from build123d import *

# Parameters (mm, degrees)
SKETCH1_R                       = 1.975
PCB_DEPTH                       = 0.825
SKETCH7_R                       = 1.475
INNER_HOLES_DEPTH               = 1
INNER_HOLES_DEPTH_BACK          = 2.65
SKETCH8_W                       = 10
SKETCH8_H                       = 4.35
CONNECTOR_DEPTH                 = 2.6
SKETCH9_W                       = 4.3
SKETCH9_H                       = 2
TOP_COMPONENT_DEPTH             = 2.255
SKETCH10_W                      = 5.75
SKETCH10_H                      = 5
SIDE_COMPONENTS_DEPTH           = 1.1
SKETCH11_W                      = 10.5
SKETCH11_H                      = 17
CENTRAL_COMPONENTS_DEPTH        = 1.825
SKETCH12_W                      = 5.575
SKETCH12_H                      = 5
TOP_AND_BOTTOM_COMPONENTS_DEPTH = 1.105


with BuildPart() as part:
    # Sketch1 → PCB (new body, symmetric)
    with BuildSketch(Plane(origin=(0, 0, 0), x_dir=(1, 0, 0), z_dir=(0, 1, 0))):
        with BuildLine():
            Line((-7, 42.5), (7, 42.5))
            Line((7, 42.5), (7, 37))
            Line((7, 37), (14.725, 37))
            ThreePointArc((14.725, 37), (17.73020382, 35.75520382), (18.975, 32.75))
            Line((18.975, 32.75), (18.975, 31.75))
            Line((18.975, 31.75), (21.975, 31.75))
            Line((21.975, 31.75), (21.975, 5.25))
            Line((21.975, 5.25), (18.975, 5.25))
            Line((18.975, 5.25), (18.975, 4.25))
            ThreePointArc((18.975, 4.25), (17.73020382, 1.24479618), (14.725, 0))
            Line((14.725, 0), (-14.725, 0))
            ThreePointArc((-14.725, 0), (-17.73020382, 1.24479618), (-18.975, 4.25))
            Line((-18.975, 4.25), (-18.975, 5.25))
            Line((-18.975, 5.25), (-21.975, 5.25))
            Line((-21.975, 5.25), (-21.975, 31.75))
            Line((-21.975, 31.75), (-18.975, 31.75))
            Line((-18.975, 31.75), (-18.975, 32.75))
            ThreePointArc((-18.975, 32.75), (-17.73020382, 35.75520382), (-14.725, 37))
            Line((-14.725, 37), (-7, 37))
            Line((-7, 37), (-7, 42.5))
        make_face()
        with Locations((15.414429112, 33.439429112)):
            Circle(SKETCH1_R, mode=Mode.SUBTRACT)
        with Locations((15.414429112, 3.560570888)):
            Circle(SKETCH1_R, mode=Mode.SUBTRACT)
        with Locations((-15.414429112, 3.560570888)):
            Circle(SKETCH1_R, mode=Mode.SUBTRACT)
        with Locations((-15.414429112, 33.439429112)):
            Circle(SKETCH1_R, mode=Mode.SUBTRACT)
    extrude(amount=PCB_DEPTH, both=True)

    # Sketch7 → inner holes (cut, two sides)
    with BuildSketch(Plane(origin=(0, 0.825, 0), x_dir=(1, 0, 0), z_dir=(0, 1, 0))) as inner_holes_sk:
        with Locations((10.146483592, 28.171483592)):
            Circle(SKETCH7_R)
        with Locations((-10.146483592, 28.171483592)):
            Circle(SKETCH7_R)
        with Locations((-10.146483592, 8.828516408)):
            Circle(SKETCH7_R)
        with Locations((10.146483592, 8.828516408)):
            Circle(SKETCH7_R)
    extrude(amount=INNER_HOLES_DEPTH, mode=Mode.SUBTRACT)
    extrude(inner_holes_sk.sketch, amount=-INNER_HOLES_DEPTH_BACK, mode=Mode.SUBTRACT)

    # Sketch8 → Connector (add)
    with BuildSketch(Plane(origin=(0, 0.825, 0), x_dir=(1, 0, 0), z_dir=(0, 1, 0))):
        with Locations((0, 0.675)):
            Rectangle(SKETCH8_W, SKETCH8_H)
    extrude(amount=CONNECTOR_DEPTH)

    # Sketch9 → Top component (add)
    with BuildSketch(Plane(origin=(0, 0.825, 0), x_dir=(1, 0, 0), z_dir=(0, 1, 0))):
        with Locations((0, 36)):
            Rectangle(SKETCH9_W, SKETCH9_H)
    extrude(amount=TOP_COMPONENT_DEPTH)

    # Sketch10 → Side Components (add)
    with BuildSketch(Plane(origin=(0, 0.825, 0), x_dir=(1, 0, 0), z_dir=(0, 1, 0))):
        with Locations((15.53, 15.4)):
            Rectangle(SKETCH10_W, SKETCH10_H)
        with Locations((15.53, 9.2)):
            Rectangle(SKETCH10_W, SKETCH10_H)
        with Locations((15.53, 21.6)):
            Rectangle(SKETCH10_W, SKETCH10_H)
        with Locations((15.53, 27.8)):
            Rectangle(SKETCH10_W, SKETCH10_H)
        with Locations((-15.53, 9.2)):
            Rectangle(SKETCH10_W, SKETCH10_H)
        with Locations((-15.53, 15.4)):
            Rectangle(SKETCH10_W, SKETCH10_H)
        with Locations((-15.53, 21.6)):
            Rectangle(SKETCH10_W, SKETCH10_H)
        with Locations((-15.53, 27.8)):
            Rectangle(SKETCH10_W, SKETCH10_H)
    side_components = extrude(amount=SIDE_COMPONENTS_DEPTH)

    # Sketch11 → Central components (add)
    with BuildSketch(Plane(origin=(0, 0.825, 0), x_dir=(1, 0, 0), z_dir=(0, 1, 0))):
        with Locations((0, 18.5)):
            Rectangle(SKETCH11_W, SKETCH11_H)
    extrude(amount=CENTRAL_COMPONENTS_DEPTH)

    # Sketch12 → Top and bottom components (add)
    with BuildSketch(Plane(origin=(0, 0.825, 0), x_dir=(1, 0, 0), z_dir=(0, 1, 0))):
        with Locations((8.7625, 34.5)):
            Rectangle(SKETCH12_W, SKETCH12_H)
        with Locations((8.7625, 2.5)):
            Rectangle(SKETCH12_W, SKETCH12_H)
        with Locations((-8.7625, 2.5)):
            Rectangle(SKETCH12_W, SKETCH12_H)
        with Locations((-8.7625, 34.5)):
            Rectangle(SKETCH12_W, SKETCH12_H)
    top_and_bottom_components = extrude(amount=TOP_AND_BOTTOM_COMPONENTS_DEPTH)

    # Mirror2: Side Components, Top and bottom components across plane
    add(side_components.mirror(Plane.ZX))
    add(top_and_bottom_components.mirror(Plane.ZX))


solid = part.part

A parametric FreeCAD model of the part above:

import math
import FreeCAD as App
import Part
import Sketcher
from FreeCAD import Vector

doc = App.newDocument("Part")
params = doc.addObject("Spreadsheet::Sheet", "Params")
for row, (alias, value) in enumerate([
    ("sketch1_diameter", "3.95 mm"),
    ("sketch1_width", "14 mm"),
    ("sketch1_width2", "3 mm"),
    ("sketch1_height", "1 mm"),
    ("sketch1_radius", "4.25 mm"),
    ("pad1_length", "1.65 mm"),
    ("sketch2_diameter", "2.95 mm"),
    ("sketch3_width", "10 mm"),
    ("sketch3_height", "4.35 mm"),
    ("pad2_length", "2.6 mm"),
    ("sketch4_height", "2 mm"),
    ("sketch4_width", "4.3 mm"),
    ("pad3_length", "2.255 mm"),
    ("sketch5_height", "5 mm"),
    ("sketch5_width", "5.75 mm"),
    ("pad4_length", "1.1 mm"),
    ("sketch6_height", "17 mm"),
    ("sketch6_width", "10.5 mm"),
    ("pad5_length", "1.825 mm"),
    ("sketch7_height", "5 mm"),
    ("pad6_length", "1.105 mm"),
], start=1):
    params.set(f"A{row}", alias)
    params.set(f"B{row}", "=" + value)
    params.setAlias(f"B{row}", alias)

body = doc.addObject("PartDesign::Body", "Body")

sketch1 = body.newObject("Sketcher::SketchObject", "Sketch")
sketch1.AttachmentSupport = (doc.getObject("XZ_Plane"), [""])
sketch1.MapMode = "FlatFace"
sketch1.addGeometry(Part.LineSegment(Vector(7, -42.5, 0), Vector(-7, -42.5, 0)), False)
sketch1.addGeometry(Part.LineSegment(Vector(-7, -42.5, 0), Vector(-7, -37, 0)), False)
sketch1.addGeometry(Part.LineSegment(Vector(-7, -37, 0), Vector(-14.7, -37, 0)), False)
sketch1.addGeometry(Part.ArcOfCircle(Part.Circle(Vector(-14.7, -32.8, 0), Vector(0, 0, 1), 4.2), math.radians(180), math.radians(270)), False)
sketch1.addGeometry(Part.LineSegment(Vector(-19, -32.8, 0), Vector(-19, -31.8, 0)), False)
sketch1.addGeometry(Part.LineSegment(Vector(-19, -31.8, 0), Vector(-22, -31.8, 0)), False)
sketch1.addGeometry(Part.LineSegment(Vector(-22, -31.8, 0), Vector(-22, -5.2, 0)), False)
sketch1.addGeometry(Part.LineSegment(Vector(-22, -5.2, 0), Vector(-19, -5.2, 0)), False)
sketch1.addGeometry(Part.LineSegment(Vector(-19, -5.2, 0), Vector(-19, -4.2, 0)), False)
sketch1.addGeometry(Part.ArcOfCircle(Part.Circle(Vector(-14.7, -4.2, 0), Vector(0, 0, 1), 4.2), math.radians(90), math.radians(180)), False)
sketch1.addGeometry(Part.LineSegment(Vector(-14.7, 0, 0), Vector(14.7, 0, 0)), False)
sketch1.addGeometry(Part.ArcOfCircle(Part.Circle(Vector(14.7, -4.2, 0), Vector(0, 0, 1), 4.2), math.radians(0), math.radians(90)), False)
sketch1.addGeometry(Part.LineSegment(Vector(19, -4.2, 0), Vector(19, -5.2, 0)), False)
sketch1.addGeometry(Part.LineSegment(Vector(19, -5.2, 0), Vector(22, -5.2, 0)), False)
sketch1.addGeometry(Part.LineSegment(Vector(22, -5.2, 0), Vector(22, -31.8, 0)), False)
sketch1.addGeometry(Part.LineSegment(Vector(22, -31.8, 0), Vector(19, -31.8, 0)), False)
sketch1.addGeometry(Part.LineSegment(Vector(19, -31.8, 0), Vector(19, -32.8, 0)), False)
sketch1.addGeometry(Part.ArcOfCircle(Part.Circle(Vector(14.7, -32.8, 0), Vector(0, 0, 1), 4.2), math.radians(-90), math.radians(0)), False)
sketch1.addGeometry(Part.LineSegment(Vector(14.7, -37, 0), Vector(7, -37, 0)), False)
sketch1.addGeometry(Part.LineSegment(Vector(7, -37, 0), Vector(7, -42.5, 0)), False)
sketch1.addGeometry(Part.Circle(Vector(15.4, -3.6, 0), Vector(0, 0, 1), 2), False)
sketch1.addGeometry(Part.Circle(Vector(-15.4, -3.6, 0), Vector(0, 0, 1), 2), False)
sketch1.addGeometry(Part.Circle(Vector(15.4, -33.4, 0), Vector(0, 0, 1), 2), False)
sketch1.addGeometry(Part.Circle(Vector(-15.4, -33.4, 0), Vector(0, 0, 1), 2), False)
sketch1.addConstraint(Sketcher.Constraint("Coincident", 0, 2, 1, 1))
sketch1.addConstraint(Sketcher.Constraint("Coincident", 1, 2, 2, 1))
sketch1.addConstraint(Sketcher.Constraint("Tangent", 2, 2, 3, 2))
sketch1.addConstraint(Sketcher.Constraint("Tangent", 3, 1, 4, 1))
sketch1.addConstraint(Sketcher.Constraint("Coincident", 4, 2, 5, 1))
sketch1.addConstraint(Sketcher.Constraint("Coincident", 5, 2, 6, 1))
sketch1.addConstraint(Sketcher.Constraint("Coincident", 6, 2, 7, 1))
sketch1.addConstraint(Sketcher.Constraint("Coincident", 7, 2, 8, 1))
sketch1.addConstraint(Sketcher.Constraint("Tangent", 8, 2, 9, 2))
sketch1.addConstraint(Sketcher.Constraint("Tangent", 9, 1, 10, 1))
sketch1.addConstraint(Sketcher.Constraint("Tangent", 10, 2, 11, 2))
sketch1.addConstraint(Sketcher.Constraint("Tangent", 11, 1, 12, 1))
sketch1.addConstraint(Sketcher.Constraint("Coincident", 12, 2, 13, 1))
sketch1.addConstraint(Sketcher.Constraint("Coincident", 13, 2, 14, 1))
sketch1.addConstraint(Sketcher.Constraint("Coincident", 14, 2, 15, 1))
sketch1.addConstraint(Sketcher.Constraint("Coincident", 15, 2, 16, 1))
sketch1.addConstraint(Sketcher.Constraint("Tangent", 16, 2, 17, 2))
sketch1.addConstraint(Sketcher.Constraint("Tangent", 17, 1, 18, 1))
sketch1.addConstraint(Sketcher.Constraint("Coincident", 18, 2, 19, 1))
sketch1.addConstraint(Sketcher.Constraint("Coincident", 19, 2, 0, 1))
sketch1.addConstraint(Sketcher.Constraint("Horizontal", 0))
sketch1.addConstraint(Sketcher.Constraint("Vertical", 1))
sketch1.addConstraint(Sketcher.Constraint("Horizontal", 2))
sketch1.addConstraint(Sketcher.Constraint("Vertical", 4))
sketch1.addConstraint(Sketcher.Constraint("Horizontal", 5))
sketch1.addConstraint(Sketcher.Constraint("Vertical", 6))
sketch1.addConstraint(Sketcher.Constraint("Horizontal", 7))
sketch1.addConstraint(Sketcher.Constraint("Vertical", 8))
sketch1.addConstraint(Sketcher.Constraint("Horizontal", 10))
sketch1.addConstraint(Sketcher.Constraint("Vertical", 12))
sketch1.addConstraint(Sketcher.Constraint("Horizontal", 13))
sketch1.addConstraint(Sketcher.Constraint("Vertical", 14))
sketch1.addConstraint(Sketcher.Constraint("Horizontal", 15))
sketch1.addConstraint(Sketcher.Constraint("Vertical", 16))
sketch1.addConstraint(Sketcher.Constraint("Horizontal", 18))
sketch1.addConstraint(Sketcher.Constraint("Vertical", 19))
sketch1.addConstraint(Sketcher.Constraint("Equal", 3, 9))
sketch1.addConstraint(Sketcher.Constraint("Equal", 9, 11))
sketch1.addConstraint(Sketcher.Constraint("Equal", 11, 17))
sketch1.addConstraint(Sketcher.Constraint("Equal", 20, 21))
sketch1.addConstraint(Sketcher.Constraint("Equal", 21, 22))
sketch1.addConstraint(Sketcher.Constraint("Equal", 22, 23))
sketch1.addConstraint(Sketcher.Constraint("Symmetric", 9, 1, 10, 2, -1, 1))
sketch1.addConstraint(Sketcher.Constraint("Symmetric", 3, 3, 17, 3, -2))
sketch1.addConstraint(Sketcher.Constraint("Symmetric", 20, 3, 21, 3, -2))
sketch1.addConstraint(Sketcher.Constraint("Symmetric", 22, 3, 23, 3, -2))
sketch1.addConstraint(Sketcher.Constraint("Symmetric", 6, 2, 13, 2, -2))
sketch1.addConstraint(Sketcher.Constraint("Horizontal", 5, 2, 14, 2))
sketch1.addConstraint(Sketcher.Constraint("Vertical", 3, 3, 9, 3))
sketch1.addConstraint(Sketcher.Constraint("Vertical", 20, 3, 22, 3))
sketch1.addConstraint(Sketcher.Constraint("Equal", 2, 18))
sketch1.addConstraint(Sketcher.Constraint("Equal", 4, 8))
sketch1.addConstraint(Sketcher.Constraint("Diameter", 20, 3.95))
sketch1.addConstraint(Sketcher.Constraint("DistanceX", 0, 2, 0, 1, 14.0))
sketch1.addConstraint(Sketcher.Constraint("DistanceX", 5, 2, 5, 1, 3.0))
sketch1.addConstraint(Sketcher.Constraint("DistanceY", 4, 1, 4, 2, 1.0))
sketch1.addConstraint(Sketcher.Constraint("Radius", 3, 4.25))
sketch1.addConstraint(Sketcher.Constraint("DistanceY", 1, 1, 1, 2, 5.5))
sketch1.addConstraint(Sketcher.Constraint("DistanceY", 6, 1, 6, 2, 26.5))
sketch1.addConstraint(Sketcher.Constraint("DistanceX", 10, 1, 10, 2, 29.45))
sketch1.addConstraint(Sketcher.Constraint("DistanceX", -1, 1, 20, 3, 15.414429))
sketch1.addConstraint(Sketcher.Constraint("DistanceY", 20, 3, -1, 1, 3.560571))
sketch1.addConstraint(Sketcher.Constraint("DistanceY", 22, 3, -1, 1, 33.439429))
sketch1.setExpression("Constraints[52]", "Params.sketch1_diameter")
sketch1.setExpression("Constraints[53]", "Params.sketch1_width")
sketch1.setExpression("Constraints[54]", "Params.sketch1_width2")
sketch1.setExpression("Constraints[55]", "Params.sketch1_height")
sketch1.setExpression("Constraints[56]", "Params.sketch1_radius")
pad1 = body.newObject("PartDesign::Pad", "Pad")
pad1.Profile = sketch1
pad1.setExpression("Length", "Params.pad1_length")
pad1.Midplane = True

sketch2 = body.newObject("Sketcher::SketchObject", "Sketch001")
sketch2.AttachmentSupport = (doc.getObject("XZ_Plane"), [""])
sketch2.MapMode = "FlatFace"
sketch2.AttachmentOffset = App.Placement(Vector(0, 0, -0.825), App.Rotation())
sketch2.addGeometry(Part.Circle(Vector(10.1, -28.2, 0), Vector(0, 0, 1), 1.5), False)
sketch2.addGeometry(Part.Circle(Vector(-10.1, -28.2, 0), Vector(0, 0, 1), 1.5), False)
sketch2.addGeometry(Part.Circle(Vector(-10.1, -8.8, 0), Vector(0, 0, 1), 1.5), False)
sketch2.addGeometry(Part.Circle(Vector(10.1, -8.8, 0), Vector(0, 0, 1), 1.5), False)
sketch2.addConstraint(Sketcher.Constraint("Equal", 0, 1))
sketch2.addConstraint(Sketcher.Constraint("Equal", 1, 2))
sketch2.addConstraint(Sketcher.Constraint("Equal", 2, 3))
sketch2.addConstraint(Sketcher.Constraint("Symmetric", 0, 3, 1, 3, -2))
sketch2.addConstraint(Sketcher.Constraint("Symmetric", 2, 3, 3, 3, -2))
sketch2.addConstraint(Sketcher.Constraint("Vertical", 1, 3, 2, 3))
sketch2.addConstraint(Sketcher.Constraint("Diameter", 0, 2.95))
sketch2.addConstraint(Sketcher.Constraint("DistanceX", -1, 1, 0, 3, 10.146484))
sketch2.addConstraint(Sketcher.Constraint("DistanceY", 0, 3, -1, 1, 28.171484))
sketch2.addConstraint(Sketcher.Constraint("DistanceY", 2, 3, -1, 1, 8.828516))
sketch2.setExpression("Constraints[6]", "Params.sketch2_diameter")
pocket1 = body.newObject("PartDesign::Pocket", "Pocket")
pocket1.Profile = sketch2
pocket1.Type = "ThroughAll"
pocket1.Midplane = True

sketch3 = body.newObject("Sketcher::SketchObject", "Sketch002")
sketch3.AttachmentSupport = (doc.getObject("XZ_Plane"), [""])
sketch3.MapMode = "FlatFace"
sketch3.AttachmentOffset = App.Placement(Vector(0, 0, -0.825), App.Rotation())
sketch3.addGeometry(Part.LineSegment(Vector(-5, -2.9, 0), Vector(-5, 1.5, 0)), False)
sketch3.addGeometry(Part.LineSegment(Vector(-5, 1.5, 0), Vector(5, 1.5, 0)), False)
sketch3.addGeometry(Part.LineSegment(Vector(5, 1.5, 0), Vector(5, -2.9, 0)), False)
sketch3.addGeometry(Part.LineSegment(Vector(5, -2.9, 0), Vector(-5, -2.9, 0)), False)
sketch3.addConstraint(Sketcher.Constraint("Coincident", 0, 2, 1, 1))
sketch3.addConstraint(Sketcher.Constraint("Coincident", 1, 2, 2, 1))
sketch3.addConstraint(Sketcher.Constraint("Coincident", 2, 2, 3, 1))
sketch3.addConstraint(Sketcher.Constraint("Coincident", 3, 2, 0, 1))
sketch3.addConstraint(Sketcher.Constraint("Vertical", 0))
sketch3.addConstraint(Sketcher.Constraint("Horizontal", 1))
sketch3.addConstraint(Sketcher.Constraint("Vertical", 2))
sketch3.addConstraint(Sketcher.Constraint("Horizontal", 3))
sketch3.addConstraint(Sketcher.Constraint("DistanceX", 1, 1, 1, 2, 10.0))
sketch3.addConstraint(Sketcher.Constraint("DistanceX", 0, 2, -1, 1, 5.0))
sketch3.addConstraint(Sketcher.Constraint("DistanceY", 0, 1, 0, 2, 4.35))
sketch3.addConstraint(Sketcher.Constraint("DistanceY", -1, 1, 0, 2, 1.5))
sketch3.setExpression("Constraints[8]", "Params.sketch3_width")
sketch3.setExpression("Constraints[10]", "Params.sketch3_height")
pad2 = body.newObject("PartDesign::Pad", "Pad001")
pad2.Profile = sketch3
pad2.setExpression("Length", "Params.pad2_length")
pad2.Reversed = True

sketch4 = body.newObject("Sketcher::SketchObject", "Sketch003")
sketch4.AttachmentSupport = (doc.getObject("XZ_Plane"), [""])
sketch4.MapMode = "FlatFace"
sketch4.AttachmentOffset = App.Placement(Vector(0, 0, -0.825), App.Rotation())
sketch4.addGeometry(Part.LineSegment(Vector(-2.1, -37, 0), Vector(-2.1, -35, 0)), False)
sketch4.addGeometry(Part.LineSegment(Vector(-2.1, -35, 0), Vector(2.1, -35, 0)), False)
sketch4.addGeometry(Part.LineSegment(Vector(2.1, -35, 0), Vector(2.1, -37, 0)), False)
sketch4.addGeometry(Part.LineSegment(Vector(2.1, -37, 0), Vector(-2.1, -37, 0)), False)
sketch4.addConstraint(Sketcher.Constraint("Coincident", 0, 2, 1, 1))
sketch4.addConstraint(Sketcher.Constraint("Coincident", 1, 2, 2, 1))
sketch4.addConstraint(Sketcher.Constraint("Coincident", 2, 2, 3, 1))
sketch4.addConstraint(Sketcher.Constraint("Coincident", 3, 2, 0, 1))
sketch4.addConstraint(Sketcher.Constraint("Vertical", 0))
sketch4.addConstraint(Sketcher.Constraint("Horizontal", 1))
sketch4.addConstraint(Sketcher.Constraint("Vertical", 2))
sketch4.addConstraint(Sketcher.Constraint("Horizontal", 3))
sketch4.addConstraint(Sketcher.Constraint("DistanceY", 0, 1, 0, 2, 2.0))
sketch4.addConstraint(Sketcher.Constraint("DistanceX", 1, 1, 1, 2, 4.3))
sketch4.addConstraint(Sketcher.Constraint("DistanceY", 0, 2, -1, 1, 35.0))
sketch4.addConstraint(Sketcher.Constraint("DistanceX", 0, 2, -1, 1, 2.15))
sketch4.setExpression("Constraints[8]", "Params.sketch4_height")
sketch4.setExpression("Constraints[9]", "Params.sketch4_width")
pad3 = body.newObject("PartDesign::Pad", "Pad002")
pad3.Profile = sketch4
pad3.setExpression("Length", "Params.pad3_length")
pad3.Reversed = True

sketch5 = body.newObject("Sketcher::SketchObject", "Sketch004")
sketch5.AttachmentSupport = (doc.getObject("XZ_Plane"), [""])
sketch5.MapMode = "FlatFace"
sketch5.AttachmentOffset = App.Placement(Vector(0, 0, -0.825), App.Rotation())
sketch5.addGeometry(Part.LineSegment(Vector(12.7, -17.9, 0), Vector(12.7, -12.9, 0)), False)
sketch5.addGeometry(Part.LineSegment(Vector(12.7, -12.9, 0), Vector(18.4, -12.9, 0)), False)
sketch5.addGeometry(Part.LineSegment(Vector(18.4, -12.9, 0), Vector(18.4, -17.9, 0)), False)
sketch5.addGeometry(Part.LineSegment(Vector(18.4, -17.9, 0), Vector(12.7, -17.9, 0)), False)
sketch5.addGeometry(Part.LineSegment(Vector(12.7, -11.7, 0), Vector(12.7, -6.7, 0)), False)
sketch5.addGeometry(Part.LineSegment(Vector(12.7, -6.7, 0), Vector(18.4, -6.7, 0)), False)
sketch5.addGeometry(Part.LineSegment(Vector(18.4, -6.7, 0), Vector(18.4, -11.7, 0)), False)
sketch5.addGeometry(Part.LineSegment(Vector(18.4, -11.7, 0), Vector(12.7, -11.7, 0)), False)
sketch5.addGeometry(Part.LineSegment(Vector(12.7, -24.1, 0), Vector(12.7, -19.1, 0)), False)
sketch5.addGeometry(Part.LineSegment(Vector(12.7, -19.1, 0), Vector(18.4, -19.1, 0)), False)
sketch5.addGeometry(Part.LineSegment(Vector(18.4, -19.1, 0), Vector(18.4, -24.1, 0)), False)
sketch5.addGeometry(Part.LineSegment(Vector(18.4, -24.1, 0), Vector(12.7, -24.1, 0)), False)
sketch5.addGeometry(Part.LineSegment(Vector(12.7, -30.3, 0), Vector(12.7, -25.3, 0)), False)
sketch5.addGeometry(Part.LineSegment(Vector(12.7, -25.3, 0), Vector(18.4, -25.3, 0)), False)
sketch5.addGeometry(Part.LineSegment(Vector(18.4, -25.3, 0), Vector(18.4, -30.3, 0)), False)
sketch5.addGeometry(Part.LineSegment(Vector(18.4, -30.3, 0), Vector(12.7, -30.3, 0)), False)
sketch5.addGeometry(Part.LineSegment(Vector(-18.4, -11.7, 0), Vector(-18.4, -6.7, 0)), False)
sketch5.addGeometry(Part.LineSegment(Vector(-18.4, -6.7, 0), Vector(-12.7, -6.7, 0)), False)
sketch5.addGeometry(Part.LineSegment(Vector(-12.7, -6.7, 0), Vector(-12.7, -11.7, 0)), False)
sketch5.addGeometry(Part.LineSegment(Vector(-12.7, -11.7, 0), Vector(-18.4, -11.7, 0)), False)
sketch5.addGeometry(Part.LineSegment(Vector(-18.4, -17.9, 0), Vector(-18.4, -12.9, 0)), False)
sketch5.addGeometry(Part.LineSegment(Vector(-18.4, -12.9, 0), Vector(-12.7, -12.9, 0)), False)
sketch5.addGeometry(Part.LineSegment(Vector(-12.7, -12.9, 0), Vector(-12.7, -17.9, 0)), False)
sketch5.addGeometry(Part.LineSegment(Vector(-12.7, -17.9, 0), Vector(-18.4, -17.9, 0)), False)
sketch5.addGeometry(Part.LineSegment(Vector(-18.4, -24.1, 0), Vector(-18.4, -19.1, 0)), False)
sketch5.addGeometry(Part.LineSegment(Vector(-18.4, -19.1, 0), Vector(-12.7, -19.1, 0)), False)
sketch5.addGeometry(Part.LineSegment(Vector(-12.7, -19.1, 0), Vector(-12.7, -24.1, 0)), False)
sketch5.addGeometry(Part.LineSegment(Vector(-12.7, -24.1, 0), Vector(-18.4, -24.1, 0)), False)
sketch5.addGeometry(Part.LineSegment(Vector(-18.4, -30.3, 0), Vector(-18.4, -25.3, 0)), False)
sketch5.addGeometry(Part.LineSegment(Vector(-18.4, -25.3, 0), Vector(-12.7, -25.3, 0)), False)
sketch5.addGeometry(Part.LineSegment(Vector(-12.7, -25.3, 0), Vector(-12.7, -30.3, 0)), False)
sketch5.addGeometry(Part.LineSegment(Vector(-12.7, -30.3, 0), Vector(-18.4, -30.3, 0)), False)
sketch5.addConstraint(Sketcher.Constraint("Coincident", 0, 2, 1, 1))
sketch5.addConstraint(Sketcher.Constraint("Coincident", 1, 2, 2, 1))
sketch5.addConstraint(Sketcher.Constraint("Coincident", 2, 2, 3, 1))
sketch5.addConstraint(Sketcher.Constraint("Coincident", 3, 2, 0, 1))
sketch5.addConstraint(Sketcher.Constraint("Coincident", 4, 2, 5, 1))
sketch5.addConstraint(Sketcher.Constraint("Coincident", 5, 2, 6, 1))
sketch5.addConstraint(Sketcher.Constraint("Coincident", 6, 2, 7, 1))
sketch5.addConstraint(Sketcher.Constraint("Coincident", 7, 2, 4, 1))
sketch5.addConstraint(Sketcher.Constraint("Coincident", 8, 2, 9, 1))
sketch5.addConstraint(Sketcher.Constraint("Coincident", 9, 2, 10, 1))
sketch5.addConstraint(Sketcher.Constraint("Coincident", 10, 2, 11, 1))
sketch5.addConstraint(Sketcher.Constraint("Coincident", 11, 2, 8, 1))
sketch5.addConstraint(Sketcher.Constraint("Coincident", 12, 2, 13, 1))
sketch5.addConstraint(Sketcher.Constraint("Coincident", 13, 2, 14, 1))
sketch5.addConstraint(Sketcher.Constraint("Coincident", 14, 2, 15, 1))
sketch5.addConstraint(Sketcher.Constraint("Coincident", 15, 2, 12, 1))
sketch5.addConstraint(Sketcher.Constraint("Coincident", 16, 2, 17, 1))
sketch5.addConstraint(Sketcher.Constraint("Coincident", 17, 2, 18, 1))
sketch5.addConstraint(Sketcher.Constraint("Coincident", 18, 2, 19, 1))
sketch5.addConstraint(Sketcher.Constraint("Coincident", 19, 2, 16, 1))
sketch5.addConstraint(Sketcher.Constraint("Coincident", 20, 2, 21, 1))
sketch5.addConstraint(Sketcher.Constraint("Coincident", 21, 2, 22, 1))
sketch5.addConstraint(Sketcher.Constraint("Coincident", 22, 2, 23, 1))
sketch5.addConstraint(Sketcher.Constraint("Coincident", 23, 2, 20, 1))
sketch5.addConstraint(Sketcher.Constraint("Coincident", 24, 2, 25, 1))
sketch5.addConstraint(Sketcher.Constraint("Coincident", 25, 2, 26, 1))
sketch5.addConstraint(Sketcher.Constraint("Coincident", 26, 2, 27, 1))
sketch5.addConstraint(Sketcher.Constraint("Coincident", 27, 2, 24, 1))
sketch5.addConstraint(Sketcher.Constraint("Coincident", 28, 2, 29, 1))
sketch5.addConstraint(Sketcher.Constraint("Coincident", 29, 2, 30, 1))
sketch5.addConstraint(Sketcher.Constraint("Coincident", 30, 2, 31, 1))
sketch5.addConstraint(Sketcher.Constraint("Coincident", 31, 2, 28, 1))
sketch5.addConstraint(Sketcher.Constraint("Vertical", 0))
sketch5.addConstraint(Sketcher.Constraint("Horizontal", 1))
sketch5.addConstraint(Sketcher.Constraint("Vertical", 2))
sketch5.addConstraint(Sketcher.Constraint("Horizontal", 3))
sketch5.addConstraint(Sketcher.Constraint("Vertical", 4))
sketch5.addConstraint(Sketcher.Constraint("Horizontal", 5))
sketch5.addConstraint(Sketcher.Constraint("Vertical", 6))
sketch5.addConstraint(Sketcher.Constraint("Horizontal", 7))
sketch5.addConstraint(Sketcher.Constraint("Vertical", 8))
sketch5.addConstraint(Sketcher.Constraint("Horizontal", 9))
sketch5.addConstraint(Sketcher.Constraint("Vertical", 10))
sketch5.addConstraint(Sketcher.Constraint("Horizontal", 11))
sketch5.addConstraint(Sketcher.Constraint("Vertical", 12))
sketch5.addConstraint(Sketcher.Constraint("Horizontal", 13))
sketch5.addConstraint(Sketcher.Constraint("Vertical", 14))
sketch5.addConstraint(Sketcher.Constraint("Horizontal", 15))
sketch5.addConstraint(Sketcher.Constraint("Vertical", 16))
sketch5.addConstraint(Sketcher.Constraint("Horizontal", 17))
sketch5.addConstraint(Sketcher.Constraint("Vertical", 18))
sketch5.addConstraint(Sketcher.Constraint("Horizontal", 19))
sketch5.addConstraint(Sketcher.Constraint("Vertical", 20))
sketch5.addConstraint(Sketcher.Constraint("Horizontal", 21))
sketch5.addConstraint(Sketcher.Constraint("Vertical", 22))
sketch5.addConstraint(Sketcher.Constraint("Horizontal", 23))
sketch5.addConstraint(Sketcher.Constraint("Vertical", 24))
sketch5.addConstraint(Sketcher.Constraint("Horizontal", 25))
sketch5.addConstraint(Sketcher.Constraint("Vertical", 26))
sketch5.addConstraint(Sketcher.Constraint("Horizontal", 27))
sketch5.addConstraint(Sketcher.Constraint("Vertical", 28))
sketch5.addConstraint(Sketcher.Constraint("Horizontal", 29))
sketch5.addConstraint(Sketcher.Constraint("Vertical", 30))
sketch5.addConstraint(Sketcher.Constraint("Horizontal", 31))
sketch5.addConstraint(Sketcher.Constraint("Symmetric", 5, 2, 16, 2, -2))
sketch5.addConstraint(Sketcher.Constraint("Symmetric", 7, 2, 18, 2, -2))
sketch5.addConstraint(Sketcher.Constraint("Symmetric", 1, 2, 20, 2, -2))
sketch5.addConstraint(Sketcher.Constraint("Symmetric", 3, 2, 22, 2, -2))
sketch5.addConstraint(Sketcher.Constraint("Symmetric", 9, 2, 24, 2, -2))
sketch5.addConstraint(Sketcher.Constraint("Symmetric", 11, 2, 26, 2, -2))
sketch5.addConstraint(Sketcher.Constraint("Symmetric", 13, 2, 28, 2, -2))
sketch5.addConstraint(Sketcher.Constraint("Symmetric", 15, 2, 30, 2, -2))
sketch5.addConstraint(Sketcher.Constraint("Vertical", 3, 2, 4, 2))
sketch5.addConstraint(Sketcher.Constraint("Vertical", 2, 2, 5, 2))
sketch5.addConstraint(Sketcher.Constraint("Vertical", 7, 2, 8, 2))
sketch5.addConstraint(Sketcher.Constraint("Vertical", 6, 2, 9, 2))
sketch5.addConstraint(Sketcher.Constraint("Vertical", 11, 2, 12, 2))
sketch5.addConstraint(Sketcher.Constraint("Vertical", 10, 2, 13, 2))
sketch5.addConstraint(Sketcher.Constraint("Equal", 2, 4))
sketch5.addConstraint(Sketcher.Constraint("Equal", 6, 8))
sketch5.addConstraint(Sketcher.Constraint("Equal", 10, 12))
sketch5.addConstraint(Sketcher.Constraint("DistanceY", 0, 1, 0, 2, 5.0))
sketch5.addConstraint(Sketcher.Constraint("DistanceX", 1, 1, 1, 2, 5.75))
sketch5.addConstraint(Sketcher.Constraint("DistanceY", 0, 2, -1, 1, 12.9))
sketch5.addConstraint(Sketcher.Constraint("DistanceY", 4, 2, -1, 1, 6.7))
sketch5.addConstraint(Sketcher.Constraint("DistanceY", 8, 2, -1, 1, 19.1))
sketch5.addConstraint(Sketcher.Constraint("DistanceY", 12, 2, -1, 1, 25.3))
sketch5.addConstraint(Sketcher.Constraint("DistanceX", 16, 2, 4, 2, 31.06))
sketch5.setExpression("Constraints[81]", "Params.sketch5_height")
sketch5.setExpression("Constraints[82]", "Params.sketch5_width")
pad4 = body.newObject("PartDesign::Pad", "Pad003")
pad4.Profile = sketch5
pad4.setExpression("Length", "Params.pad4_length")
pad4.Reversed = True

sketch6 = body.newObject("Sketcher::SketchObject", "Sketch005")
sketch6.AttachmentSupport = (doc.getObject("XZ_Plane"), [""])
sketch6.MapMode = "FlatFace"
sketch6.AttachmentOffset = App.Placement(Vector(0, 0, -0.825), App.Rotation())
sketch6.addGeometry(Part.LineSegment(Vector(-5, -27, 0), Vector(-5, -10, 0)), False)
sketch6.addGeometry(Part.LineSegment(Vector(-5, -10, 0), Vector(5, -10, 0)), False)
sketch6.addGeometry(Part.LineSegment(Vector(5, -10, 0), Vector(5, -27, 0)), False)
sketch6.addGeometry(Part.LineSegment(Vector(5, -27, 0), Vector(-5, -27, 0)), False)
sketch6.addConstraint(Sketcher.Constraint("Coincident", 0, 2, 1, 1))
sketch6.addConstraint(Sketcher.Constraint("Coincident", 1, 2, 2, 1))
sketch6.addConstraint(Sketcher.Constraint("Coincident", 2, 2, 3, 1))
sketch6.addConstraint(Sketcher.Constraint("Coincident", 3, 2, 0, 1))
sketch6.addConstraint(Sketcher.Constraint("Vertical", 0))
sketch6.addConstraint(Sketcher.Constraint("Horizontal", 1))
sketch6.addConstraint(Sketcher.Constraint("Vertical", 2))
sketch6.addConstraint(Sketcher.Constraint("Horizontal", 3))
sketch6.addConstraint(Sketcher.Constraint("DistanceY", 0, 1, 0, 2, 17.0))
sketch6.addConstraint(Sketcher.Constraint("DistanceX", 1, 1, 1, 2, 10.5))
sketch6.addConstraint(Sketcher.Constraint("DistanceY", 0, 2, -1, 1, 10.0))
sketch6.addConstraint(Sketcher.Constraint("DistanceX", 0, 2, -1, 1, 5.25))
sketch6.setExpression("Constraints[8]", "Params.sketch6_height")
sketch6.setExpression("Constraints[9]", "Params.sketch6_width")
pad5 = body.newObject("PartDesign::Pad", "Pad004")
pad5.Profile = sketch6
pad5.setExpression("Length", "Params.pad5_length")
pad5.Reversed = True

sketch7 = body.newObject("Sketcher::SketchObject", "Sketch006")
sketch7.AttachmentSupport = (doc.getObject("XZ_Plane"), [""])
sketch7.MapMode = "FlatFace"
sketch7.AttachmentOffset = App.Placement(Vector(0, 0, -0.825), App.Rotation())
sketch7.addGeometry(Part.LineSegment(Vector(6, -37, 0), Vector(6, -32, 0)), False)
sketch7.addGeometry(Part.LineSegment(Vector(6, -32, 0), Vector(12, -32, 0)), False)
sketch7.addGeometry(Part.LineSegment(Vector(12, -32, 0), Vector(12, -37, 0)), False)
sketch7.addGeometry(Part.LineSegment(Vector(12, -37, 0), Vector(6, -37, 0)), False)
sketch7.addGeometry(Part.LineSegment(Vector(6, -5, 0), Vector(6, 0, 0)), False)
sketch7.addGeometry(Part.LineSegment(Vector(6, 0, 0), Vector(12, 0, 0)), False)
sketch7.addGeometry(Part.LineSegment(Vector(12, 0, 0), Vector(12, -5, 0)), False)
sketch7.addGeometry(Part.LineSegment(Vector(12, -5, 0), Vector(6, -5, 0)), False)
sketch7.addGeometry(Part.LineSegment(Vector(-12, -5, 0), Vector(-12, 0, 0)), False)
sketch7.addGeometry(Part.LineSegment(Vector(-12, 0, 0), Vector(-6, 0, 0)), False)
sketch7.addGeometry(Part.LineSegment(Vector(-6, 0, 0), Vector(-6, -5, 0)), False)
sketch7.addGeometry(Part.LineSegment(Vector(-6, -5, 0), Vector(-12, -5, 0)), False)
sketch7.addGeometry(Part.LineSegment(Vector(-12, -37, 0), Vector(-12, -32, 0)), False)
sketch7.addGeometry(Part.LineSegment(Vector(-12, -32, 0), Vector(-6, -32, 0)), False)
sketch7.addGeometry(Part.LineSegment(Vector(-6, -32, 0), Vector(-6, -37, 0)), False)
sketch7.addGeometry(Part.LineSegment(Vector(-6, -37, 0), Vector(-12, -37, 0)), False)
sketch7.addConstraint(Sketcher.Constraint("Coincident", 0, 2, 1, 1))
sketch7.addConstraint(Sketcher.Constraint("Coincident", 1, 2, 2, 1))
sketch7.addConstraint(Sketcher.Constraint("Coincident", 2, 2, 3, 1))
sketch7.addConstraint(Sketcher.Constraint("Coincident", 3, 2, 0, 1))
sketch7.addConstraint(Sketcher.Constraint("Coincident", 4, 2, 5, 1))
sketch7.addConstraint(Sketcher.Constraint("Coincident", 5, 2, 6, 1))
sketch7.addConstraint(Sketcher.Constraint("Coincident", 6, 2, 7, 1))
sketch7.addConstraint(Sketcher.Constraint("Coincident", 7, 2, 4, 1))
sketch7.addConstraint(Sketcher.Constraint("Coincident", 8, 2, 9, 1))
sketch7.addConstraint(Sketcher.Constraint("Coincident", 9, 2, 10, 1))
sketch7.addConstraint(Sketcher.Constraint("Coincident", 10, 2, 11, 1))
sketch7.addConstraint(Sketcher.Constraint("Coincident", 11, 2, 8, 1))
sketch7.addConstraint(Sketcher.Constraint("Coincident", 12, 2, 13, 1))
sketch7.addConstraint(Sketcher.Constraint("Coincident", 13, 2, 14, 1))
sketch7.addConstraint(Sketcher.Constraint("Coincident", 14, 2, 15, 1))
sketch7.addConstraint(Sketcher.Constraint("Coincident", 15, 2, 12, 1))
sketch7.addConstraint(Sketcher.Constraint("Vertical", 0))
sketch7.addConstraint(Sketcher.Constraint("Horizontal", 1))
sketch7.addConstraint(Sketcher.Constraint("Vertical", 2))
sketch7.addConstraint(Sketcher.Constraint("Horizontal", 3))
sketch7.addConstraint(Sketcher.Constraint("Vertical", 4))
sketch7.addConstraint(Sketcher.Constraint("Horizontal", 5))
sketch7.addConstraint(Sketcher.Constraint("Vertical", 6))
sketch7.addConstraint(Sketcher.Constraint("Horizontal", 7))
sketch7.addConstraint(Sketcher.Constraint("Vertical", 8))
sketch7.addConstraint(Sketcher.Constraint("Horizontal", 9))
sketch7.addConstraint(Sketcher.Constraint("Vertical", 10))
sketch7.addConstraint(Sketcher.Constraint("Horizontal", 11))
sketch7.addConstraint(Sketcher.Constraint("Vertical", 12))
sketch7.addConstraint(Sketcher.Constraint("Horizontal", 13))
sketch7.addConstraint(Sketcher.Constraint("Vertical", 14))
sketch7.addConstraint(Sketcher.Constraint("Horizontal", 15))
sketch7.addConstraint(Sketcher.Constraint("Symmetric", 5, 2, 8, 2, -1, 1))
sketch7.addConstraint(Sketcher.Constraint("Symmetric", 4, 2, 9, 2, -2))
sketch7.addConstraint(Sketcher.Constraint("Symmetric", 1, 2, 12, 2, -2))
sketch7.addConstraint(Sketcher.Constraint("Symmetric", 3, 2, 14, 2, -2))
sketch7.addConstraint(Sketcher.Constraint("Horizontal", 7, 2, 10, 2))
sketch7.addConstraint(Sketcher.Constraint("Vertical", 3, 2, 4, 2))
sketch7.addConstraint(Sketcher.Constraint("Vertical", 2, 2, 5, 2))
sketch7.addConstraint(Sketcher.Constraint("Equal", 2, 4))
sketch7.addConstraint(Sketcher.Constraint("DistanceY", 0, 1, 0, 2, 5.0))
sketch7.addConstraint(Sketcher.Constraint("DistanceY", 0, 2, -1, 1, 32.0))
sketch7.addConstraint(Sketcher.Constraint("DistanceX", 8, 2, 5, 2, 23.1))
sketch7.addConstraint(Sketcher.Constraint("DistanceX", 1, 1, 1, 2, 5.575))
sketch7.setExpression("Constraints[40]", "Params.sketch7_height")
pad6 = body.newObject("PartDesign::Pad", "Pad005")
pad6.Profile = sketch7
pad6.setExpression("Length", "Params.pad6_length")
pad6.Reversed = True
doc.recompute()

mirrored = body.newObject("PartDesign::Mirrored", "Mirrored")
mirrored.Originals = [pad4, pad6]
mirrored.MirrorPlane = (doc.getObject("XZ_Plane"), [""])
body.Tip = mirrored

doc.recompute()
